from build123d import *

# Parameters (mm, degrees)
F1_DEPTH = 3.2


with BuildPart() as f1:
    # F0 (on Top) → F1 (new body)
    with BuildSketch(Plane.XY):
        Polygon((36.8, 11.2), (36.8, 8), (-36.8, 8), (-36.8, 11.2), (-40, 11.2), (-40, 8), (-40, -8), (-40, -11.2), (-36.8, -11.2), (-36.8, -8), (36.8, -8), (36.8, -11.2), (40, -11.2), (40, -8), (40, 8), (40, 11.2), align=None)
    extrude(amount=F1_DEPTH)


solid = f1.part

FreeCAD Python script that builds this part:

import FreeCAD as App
import Part
import Sketcher

V = App.Vector
Q = App.Units.Quantity


def add_polygon(sketch, points):
    """Adds a closed chain of lines whose ends are joined by coincident constraints."""
    first, n = sketch.GeometryCount, len(points)
    for a, b in zip(points, points[1:] + points[:1]):
        sketch.addGeometry(Part.LineSegment(App.Vector(*a, 0), App.Vector(*b, 0)), False)
    for i in range(n):
        sketch.addConstraint(Sketcher.Constraint("Coincident", first + i, 2, first + (i + 1) % n, 1))

doc = App.newDocument("Part")
body = doc.addObject("PartDesign::Body", "Body")

# Sketch on XY plane
sketch1 = doc.addObject("Sketcher::SketchObject", "Sketch")
body.addObject(sketch1)
sketch1.AttachmentSupport = (doc.XY_Plane, [""])
sketch1.MapMode = "FlatFace"
add_polygon(sketch1, [(36.8, 11.2), (36.8, 8), (-36.8, 8), (-36.8, 11.2), (-40, 11.2), (-40, -11.2), (-36.8, -11.2), (-36.8, -8), (36.8, -8), (36.8, -11.2), (40, -11.2), (40, 11.2)])  # lines 0-11
sketch1.addConstraint(Sketcher.Constraint("Vertical", 0))
sketch1.addConstraint(Sketcher.Constraint("Horizontal", 1))
sketch1.addConstraint(Sketcher.Constraint("Vertical", 2))
sketch1.addConstraint(Sketcher.Constraint("Horizontal", 3))
sketch1.addConstraint(Sketcher.Constraint("Vertical", 4))
sketch1.addConstraint(Sketcher.Constraint("Horizontal", 5))
sketch1.addConstraint(Sketcher.Constraint("Vertical", 6))
sketch1.addConstraint(Sketcher.Constraint("Horizontal", 7))
sketch1.addConstraint(Sketcher.Constraint("Vertical", 8))
sketch1.addConstraint(Sketcher.Constraint("Horizontal", 9))
sketch1.addConstraint(Sketcher.Constraint("Vertical", 10))
sketch1.addConstraint(Sketcher.Constraint("Horizontal", 11))
sketch1.addConstraint(Sketcher.Constraint("Symmetric", 0, 2, 6, 2, -1, 1))
sketch1.addConstraint(Sketcher.Constraint("Symmetric", 2, 2, 8, 2, -1, 1))
sketch1.addConstraint(Sketcher.Constraint("Symmetric", 4, 2, 10, 2, -1, 1))
sketch1.addConstraint(Sketcher.Constraint("Symmetric", 5, 2, 8, 2, -2))
sketch1.addConstraint(Sketcher.Constraint("Equal", 11, 0))
sketch1.addConstraint(Sketcher.Constraint("DistanceX", 1, 2, 1, 1, Q("73.6 mm")))
sketch1.addConstraint(Sketcher.Constraint("DistanceX", 3, 2, 3, 1, Q("3.2 mm")))
sketch1.addConstraint(Sketcher.Constraint("DistanceY", 4, 2, 4, 1, Q("22.4 mm")))
pad1 = doc.addObject("PartDesign::Pad", "Pad")
body.addObject(pad1)
pad1.Profile = sketch1
pad1.Length = 3.2

doc.recompute()
